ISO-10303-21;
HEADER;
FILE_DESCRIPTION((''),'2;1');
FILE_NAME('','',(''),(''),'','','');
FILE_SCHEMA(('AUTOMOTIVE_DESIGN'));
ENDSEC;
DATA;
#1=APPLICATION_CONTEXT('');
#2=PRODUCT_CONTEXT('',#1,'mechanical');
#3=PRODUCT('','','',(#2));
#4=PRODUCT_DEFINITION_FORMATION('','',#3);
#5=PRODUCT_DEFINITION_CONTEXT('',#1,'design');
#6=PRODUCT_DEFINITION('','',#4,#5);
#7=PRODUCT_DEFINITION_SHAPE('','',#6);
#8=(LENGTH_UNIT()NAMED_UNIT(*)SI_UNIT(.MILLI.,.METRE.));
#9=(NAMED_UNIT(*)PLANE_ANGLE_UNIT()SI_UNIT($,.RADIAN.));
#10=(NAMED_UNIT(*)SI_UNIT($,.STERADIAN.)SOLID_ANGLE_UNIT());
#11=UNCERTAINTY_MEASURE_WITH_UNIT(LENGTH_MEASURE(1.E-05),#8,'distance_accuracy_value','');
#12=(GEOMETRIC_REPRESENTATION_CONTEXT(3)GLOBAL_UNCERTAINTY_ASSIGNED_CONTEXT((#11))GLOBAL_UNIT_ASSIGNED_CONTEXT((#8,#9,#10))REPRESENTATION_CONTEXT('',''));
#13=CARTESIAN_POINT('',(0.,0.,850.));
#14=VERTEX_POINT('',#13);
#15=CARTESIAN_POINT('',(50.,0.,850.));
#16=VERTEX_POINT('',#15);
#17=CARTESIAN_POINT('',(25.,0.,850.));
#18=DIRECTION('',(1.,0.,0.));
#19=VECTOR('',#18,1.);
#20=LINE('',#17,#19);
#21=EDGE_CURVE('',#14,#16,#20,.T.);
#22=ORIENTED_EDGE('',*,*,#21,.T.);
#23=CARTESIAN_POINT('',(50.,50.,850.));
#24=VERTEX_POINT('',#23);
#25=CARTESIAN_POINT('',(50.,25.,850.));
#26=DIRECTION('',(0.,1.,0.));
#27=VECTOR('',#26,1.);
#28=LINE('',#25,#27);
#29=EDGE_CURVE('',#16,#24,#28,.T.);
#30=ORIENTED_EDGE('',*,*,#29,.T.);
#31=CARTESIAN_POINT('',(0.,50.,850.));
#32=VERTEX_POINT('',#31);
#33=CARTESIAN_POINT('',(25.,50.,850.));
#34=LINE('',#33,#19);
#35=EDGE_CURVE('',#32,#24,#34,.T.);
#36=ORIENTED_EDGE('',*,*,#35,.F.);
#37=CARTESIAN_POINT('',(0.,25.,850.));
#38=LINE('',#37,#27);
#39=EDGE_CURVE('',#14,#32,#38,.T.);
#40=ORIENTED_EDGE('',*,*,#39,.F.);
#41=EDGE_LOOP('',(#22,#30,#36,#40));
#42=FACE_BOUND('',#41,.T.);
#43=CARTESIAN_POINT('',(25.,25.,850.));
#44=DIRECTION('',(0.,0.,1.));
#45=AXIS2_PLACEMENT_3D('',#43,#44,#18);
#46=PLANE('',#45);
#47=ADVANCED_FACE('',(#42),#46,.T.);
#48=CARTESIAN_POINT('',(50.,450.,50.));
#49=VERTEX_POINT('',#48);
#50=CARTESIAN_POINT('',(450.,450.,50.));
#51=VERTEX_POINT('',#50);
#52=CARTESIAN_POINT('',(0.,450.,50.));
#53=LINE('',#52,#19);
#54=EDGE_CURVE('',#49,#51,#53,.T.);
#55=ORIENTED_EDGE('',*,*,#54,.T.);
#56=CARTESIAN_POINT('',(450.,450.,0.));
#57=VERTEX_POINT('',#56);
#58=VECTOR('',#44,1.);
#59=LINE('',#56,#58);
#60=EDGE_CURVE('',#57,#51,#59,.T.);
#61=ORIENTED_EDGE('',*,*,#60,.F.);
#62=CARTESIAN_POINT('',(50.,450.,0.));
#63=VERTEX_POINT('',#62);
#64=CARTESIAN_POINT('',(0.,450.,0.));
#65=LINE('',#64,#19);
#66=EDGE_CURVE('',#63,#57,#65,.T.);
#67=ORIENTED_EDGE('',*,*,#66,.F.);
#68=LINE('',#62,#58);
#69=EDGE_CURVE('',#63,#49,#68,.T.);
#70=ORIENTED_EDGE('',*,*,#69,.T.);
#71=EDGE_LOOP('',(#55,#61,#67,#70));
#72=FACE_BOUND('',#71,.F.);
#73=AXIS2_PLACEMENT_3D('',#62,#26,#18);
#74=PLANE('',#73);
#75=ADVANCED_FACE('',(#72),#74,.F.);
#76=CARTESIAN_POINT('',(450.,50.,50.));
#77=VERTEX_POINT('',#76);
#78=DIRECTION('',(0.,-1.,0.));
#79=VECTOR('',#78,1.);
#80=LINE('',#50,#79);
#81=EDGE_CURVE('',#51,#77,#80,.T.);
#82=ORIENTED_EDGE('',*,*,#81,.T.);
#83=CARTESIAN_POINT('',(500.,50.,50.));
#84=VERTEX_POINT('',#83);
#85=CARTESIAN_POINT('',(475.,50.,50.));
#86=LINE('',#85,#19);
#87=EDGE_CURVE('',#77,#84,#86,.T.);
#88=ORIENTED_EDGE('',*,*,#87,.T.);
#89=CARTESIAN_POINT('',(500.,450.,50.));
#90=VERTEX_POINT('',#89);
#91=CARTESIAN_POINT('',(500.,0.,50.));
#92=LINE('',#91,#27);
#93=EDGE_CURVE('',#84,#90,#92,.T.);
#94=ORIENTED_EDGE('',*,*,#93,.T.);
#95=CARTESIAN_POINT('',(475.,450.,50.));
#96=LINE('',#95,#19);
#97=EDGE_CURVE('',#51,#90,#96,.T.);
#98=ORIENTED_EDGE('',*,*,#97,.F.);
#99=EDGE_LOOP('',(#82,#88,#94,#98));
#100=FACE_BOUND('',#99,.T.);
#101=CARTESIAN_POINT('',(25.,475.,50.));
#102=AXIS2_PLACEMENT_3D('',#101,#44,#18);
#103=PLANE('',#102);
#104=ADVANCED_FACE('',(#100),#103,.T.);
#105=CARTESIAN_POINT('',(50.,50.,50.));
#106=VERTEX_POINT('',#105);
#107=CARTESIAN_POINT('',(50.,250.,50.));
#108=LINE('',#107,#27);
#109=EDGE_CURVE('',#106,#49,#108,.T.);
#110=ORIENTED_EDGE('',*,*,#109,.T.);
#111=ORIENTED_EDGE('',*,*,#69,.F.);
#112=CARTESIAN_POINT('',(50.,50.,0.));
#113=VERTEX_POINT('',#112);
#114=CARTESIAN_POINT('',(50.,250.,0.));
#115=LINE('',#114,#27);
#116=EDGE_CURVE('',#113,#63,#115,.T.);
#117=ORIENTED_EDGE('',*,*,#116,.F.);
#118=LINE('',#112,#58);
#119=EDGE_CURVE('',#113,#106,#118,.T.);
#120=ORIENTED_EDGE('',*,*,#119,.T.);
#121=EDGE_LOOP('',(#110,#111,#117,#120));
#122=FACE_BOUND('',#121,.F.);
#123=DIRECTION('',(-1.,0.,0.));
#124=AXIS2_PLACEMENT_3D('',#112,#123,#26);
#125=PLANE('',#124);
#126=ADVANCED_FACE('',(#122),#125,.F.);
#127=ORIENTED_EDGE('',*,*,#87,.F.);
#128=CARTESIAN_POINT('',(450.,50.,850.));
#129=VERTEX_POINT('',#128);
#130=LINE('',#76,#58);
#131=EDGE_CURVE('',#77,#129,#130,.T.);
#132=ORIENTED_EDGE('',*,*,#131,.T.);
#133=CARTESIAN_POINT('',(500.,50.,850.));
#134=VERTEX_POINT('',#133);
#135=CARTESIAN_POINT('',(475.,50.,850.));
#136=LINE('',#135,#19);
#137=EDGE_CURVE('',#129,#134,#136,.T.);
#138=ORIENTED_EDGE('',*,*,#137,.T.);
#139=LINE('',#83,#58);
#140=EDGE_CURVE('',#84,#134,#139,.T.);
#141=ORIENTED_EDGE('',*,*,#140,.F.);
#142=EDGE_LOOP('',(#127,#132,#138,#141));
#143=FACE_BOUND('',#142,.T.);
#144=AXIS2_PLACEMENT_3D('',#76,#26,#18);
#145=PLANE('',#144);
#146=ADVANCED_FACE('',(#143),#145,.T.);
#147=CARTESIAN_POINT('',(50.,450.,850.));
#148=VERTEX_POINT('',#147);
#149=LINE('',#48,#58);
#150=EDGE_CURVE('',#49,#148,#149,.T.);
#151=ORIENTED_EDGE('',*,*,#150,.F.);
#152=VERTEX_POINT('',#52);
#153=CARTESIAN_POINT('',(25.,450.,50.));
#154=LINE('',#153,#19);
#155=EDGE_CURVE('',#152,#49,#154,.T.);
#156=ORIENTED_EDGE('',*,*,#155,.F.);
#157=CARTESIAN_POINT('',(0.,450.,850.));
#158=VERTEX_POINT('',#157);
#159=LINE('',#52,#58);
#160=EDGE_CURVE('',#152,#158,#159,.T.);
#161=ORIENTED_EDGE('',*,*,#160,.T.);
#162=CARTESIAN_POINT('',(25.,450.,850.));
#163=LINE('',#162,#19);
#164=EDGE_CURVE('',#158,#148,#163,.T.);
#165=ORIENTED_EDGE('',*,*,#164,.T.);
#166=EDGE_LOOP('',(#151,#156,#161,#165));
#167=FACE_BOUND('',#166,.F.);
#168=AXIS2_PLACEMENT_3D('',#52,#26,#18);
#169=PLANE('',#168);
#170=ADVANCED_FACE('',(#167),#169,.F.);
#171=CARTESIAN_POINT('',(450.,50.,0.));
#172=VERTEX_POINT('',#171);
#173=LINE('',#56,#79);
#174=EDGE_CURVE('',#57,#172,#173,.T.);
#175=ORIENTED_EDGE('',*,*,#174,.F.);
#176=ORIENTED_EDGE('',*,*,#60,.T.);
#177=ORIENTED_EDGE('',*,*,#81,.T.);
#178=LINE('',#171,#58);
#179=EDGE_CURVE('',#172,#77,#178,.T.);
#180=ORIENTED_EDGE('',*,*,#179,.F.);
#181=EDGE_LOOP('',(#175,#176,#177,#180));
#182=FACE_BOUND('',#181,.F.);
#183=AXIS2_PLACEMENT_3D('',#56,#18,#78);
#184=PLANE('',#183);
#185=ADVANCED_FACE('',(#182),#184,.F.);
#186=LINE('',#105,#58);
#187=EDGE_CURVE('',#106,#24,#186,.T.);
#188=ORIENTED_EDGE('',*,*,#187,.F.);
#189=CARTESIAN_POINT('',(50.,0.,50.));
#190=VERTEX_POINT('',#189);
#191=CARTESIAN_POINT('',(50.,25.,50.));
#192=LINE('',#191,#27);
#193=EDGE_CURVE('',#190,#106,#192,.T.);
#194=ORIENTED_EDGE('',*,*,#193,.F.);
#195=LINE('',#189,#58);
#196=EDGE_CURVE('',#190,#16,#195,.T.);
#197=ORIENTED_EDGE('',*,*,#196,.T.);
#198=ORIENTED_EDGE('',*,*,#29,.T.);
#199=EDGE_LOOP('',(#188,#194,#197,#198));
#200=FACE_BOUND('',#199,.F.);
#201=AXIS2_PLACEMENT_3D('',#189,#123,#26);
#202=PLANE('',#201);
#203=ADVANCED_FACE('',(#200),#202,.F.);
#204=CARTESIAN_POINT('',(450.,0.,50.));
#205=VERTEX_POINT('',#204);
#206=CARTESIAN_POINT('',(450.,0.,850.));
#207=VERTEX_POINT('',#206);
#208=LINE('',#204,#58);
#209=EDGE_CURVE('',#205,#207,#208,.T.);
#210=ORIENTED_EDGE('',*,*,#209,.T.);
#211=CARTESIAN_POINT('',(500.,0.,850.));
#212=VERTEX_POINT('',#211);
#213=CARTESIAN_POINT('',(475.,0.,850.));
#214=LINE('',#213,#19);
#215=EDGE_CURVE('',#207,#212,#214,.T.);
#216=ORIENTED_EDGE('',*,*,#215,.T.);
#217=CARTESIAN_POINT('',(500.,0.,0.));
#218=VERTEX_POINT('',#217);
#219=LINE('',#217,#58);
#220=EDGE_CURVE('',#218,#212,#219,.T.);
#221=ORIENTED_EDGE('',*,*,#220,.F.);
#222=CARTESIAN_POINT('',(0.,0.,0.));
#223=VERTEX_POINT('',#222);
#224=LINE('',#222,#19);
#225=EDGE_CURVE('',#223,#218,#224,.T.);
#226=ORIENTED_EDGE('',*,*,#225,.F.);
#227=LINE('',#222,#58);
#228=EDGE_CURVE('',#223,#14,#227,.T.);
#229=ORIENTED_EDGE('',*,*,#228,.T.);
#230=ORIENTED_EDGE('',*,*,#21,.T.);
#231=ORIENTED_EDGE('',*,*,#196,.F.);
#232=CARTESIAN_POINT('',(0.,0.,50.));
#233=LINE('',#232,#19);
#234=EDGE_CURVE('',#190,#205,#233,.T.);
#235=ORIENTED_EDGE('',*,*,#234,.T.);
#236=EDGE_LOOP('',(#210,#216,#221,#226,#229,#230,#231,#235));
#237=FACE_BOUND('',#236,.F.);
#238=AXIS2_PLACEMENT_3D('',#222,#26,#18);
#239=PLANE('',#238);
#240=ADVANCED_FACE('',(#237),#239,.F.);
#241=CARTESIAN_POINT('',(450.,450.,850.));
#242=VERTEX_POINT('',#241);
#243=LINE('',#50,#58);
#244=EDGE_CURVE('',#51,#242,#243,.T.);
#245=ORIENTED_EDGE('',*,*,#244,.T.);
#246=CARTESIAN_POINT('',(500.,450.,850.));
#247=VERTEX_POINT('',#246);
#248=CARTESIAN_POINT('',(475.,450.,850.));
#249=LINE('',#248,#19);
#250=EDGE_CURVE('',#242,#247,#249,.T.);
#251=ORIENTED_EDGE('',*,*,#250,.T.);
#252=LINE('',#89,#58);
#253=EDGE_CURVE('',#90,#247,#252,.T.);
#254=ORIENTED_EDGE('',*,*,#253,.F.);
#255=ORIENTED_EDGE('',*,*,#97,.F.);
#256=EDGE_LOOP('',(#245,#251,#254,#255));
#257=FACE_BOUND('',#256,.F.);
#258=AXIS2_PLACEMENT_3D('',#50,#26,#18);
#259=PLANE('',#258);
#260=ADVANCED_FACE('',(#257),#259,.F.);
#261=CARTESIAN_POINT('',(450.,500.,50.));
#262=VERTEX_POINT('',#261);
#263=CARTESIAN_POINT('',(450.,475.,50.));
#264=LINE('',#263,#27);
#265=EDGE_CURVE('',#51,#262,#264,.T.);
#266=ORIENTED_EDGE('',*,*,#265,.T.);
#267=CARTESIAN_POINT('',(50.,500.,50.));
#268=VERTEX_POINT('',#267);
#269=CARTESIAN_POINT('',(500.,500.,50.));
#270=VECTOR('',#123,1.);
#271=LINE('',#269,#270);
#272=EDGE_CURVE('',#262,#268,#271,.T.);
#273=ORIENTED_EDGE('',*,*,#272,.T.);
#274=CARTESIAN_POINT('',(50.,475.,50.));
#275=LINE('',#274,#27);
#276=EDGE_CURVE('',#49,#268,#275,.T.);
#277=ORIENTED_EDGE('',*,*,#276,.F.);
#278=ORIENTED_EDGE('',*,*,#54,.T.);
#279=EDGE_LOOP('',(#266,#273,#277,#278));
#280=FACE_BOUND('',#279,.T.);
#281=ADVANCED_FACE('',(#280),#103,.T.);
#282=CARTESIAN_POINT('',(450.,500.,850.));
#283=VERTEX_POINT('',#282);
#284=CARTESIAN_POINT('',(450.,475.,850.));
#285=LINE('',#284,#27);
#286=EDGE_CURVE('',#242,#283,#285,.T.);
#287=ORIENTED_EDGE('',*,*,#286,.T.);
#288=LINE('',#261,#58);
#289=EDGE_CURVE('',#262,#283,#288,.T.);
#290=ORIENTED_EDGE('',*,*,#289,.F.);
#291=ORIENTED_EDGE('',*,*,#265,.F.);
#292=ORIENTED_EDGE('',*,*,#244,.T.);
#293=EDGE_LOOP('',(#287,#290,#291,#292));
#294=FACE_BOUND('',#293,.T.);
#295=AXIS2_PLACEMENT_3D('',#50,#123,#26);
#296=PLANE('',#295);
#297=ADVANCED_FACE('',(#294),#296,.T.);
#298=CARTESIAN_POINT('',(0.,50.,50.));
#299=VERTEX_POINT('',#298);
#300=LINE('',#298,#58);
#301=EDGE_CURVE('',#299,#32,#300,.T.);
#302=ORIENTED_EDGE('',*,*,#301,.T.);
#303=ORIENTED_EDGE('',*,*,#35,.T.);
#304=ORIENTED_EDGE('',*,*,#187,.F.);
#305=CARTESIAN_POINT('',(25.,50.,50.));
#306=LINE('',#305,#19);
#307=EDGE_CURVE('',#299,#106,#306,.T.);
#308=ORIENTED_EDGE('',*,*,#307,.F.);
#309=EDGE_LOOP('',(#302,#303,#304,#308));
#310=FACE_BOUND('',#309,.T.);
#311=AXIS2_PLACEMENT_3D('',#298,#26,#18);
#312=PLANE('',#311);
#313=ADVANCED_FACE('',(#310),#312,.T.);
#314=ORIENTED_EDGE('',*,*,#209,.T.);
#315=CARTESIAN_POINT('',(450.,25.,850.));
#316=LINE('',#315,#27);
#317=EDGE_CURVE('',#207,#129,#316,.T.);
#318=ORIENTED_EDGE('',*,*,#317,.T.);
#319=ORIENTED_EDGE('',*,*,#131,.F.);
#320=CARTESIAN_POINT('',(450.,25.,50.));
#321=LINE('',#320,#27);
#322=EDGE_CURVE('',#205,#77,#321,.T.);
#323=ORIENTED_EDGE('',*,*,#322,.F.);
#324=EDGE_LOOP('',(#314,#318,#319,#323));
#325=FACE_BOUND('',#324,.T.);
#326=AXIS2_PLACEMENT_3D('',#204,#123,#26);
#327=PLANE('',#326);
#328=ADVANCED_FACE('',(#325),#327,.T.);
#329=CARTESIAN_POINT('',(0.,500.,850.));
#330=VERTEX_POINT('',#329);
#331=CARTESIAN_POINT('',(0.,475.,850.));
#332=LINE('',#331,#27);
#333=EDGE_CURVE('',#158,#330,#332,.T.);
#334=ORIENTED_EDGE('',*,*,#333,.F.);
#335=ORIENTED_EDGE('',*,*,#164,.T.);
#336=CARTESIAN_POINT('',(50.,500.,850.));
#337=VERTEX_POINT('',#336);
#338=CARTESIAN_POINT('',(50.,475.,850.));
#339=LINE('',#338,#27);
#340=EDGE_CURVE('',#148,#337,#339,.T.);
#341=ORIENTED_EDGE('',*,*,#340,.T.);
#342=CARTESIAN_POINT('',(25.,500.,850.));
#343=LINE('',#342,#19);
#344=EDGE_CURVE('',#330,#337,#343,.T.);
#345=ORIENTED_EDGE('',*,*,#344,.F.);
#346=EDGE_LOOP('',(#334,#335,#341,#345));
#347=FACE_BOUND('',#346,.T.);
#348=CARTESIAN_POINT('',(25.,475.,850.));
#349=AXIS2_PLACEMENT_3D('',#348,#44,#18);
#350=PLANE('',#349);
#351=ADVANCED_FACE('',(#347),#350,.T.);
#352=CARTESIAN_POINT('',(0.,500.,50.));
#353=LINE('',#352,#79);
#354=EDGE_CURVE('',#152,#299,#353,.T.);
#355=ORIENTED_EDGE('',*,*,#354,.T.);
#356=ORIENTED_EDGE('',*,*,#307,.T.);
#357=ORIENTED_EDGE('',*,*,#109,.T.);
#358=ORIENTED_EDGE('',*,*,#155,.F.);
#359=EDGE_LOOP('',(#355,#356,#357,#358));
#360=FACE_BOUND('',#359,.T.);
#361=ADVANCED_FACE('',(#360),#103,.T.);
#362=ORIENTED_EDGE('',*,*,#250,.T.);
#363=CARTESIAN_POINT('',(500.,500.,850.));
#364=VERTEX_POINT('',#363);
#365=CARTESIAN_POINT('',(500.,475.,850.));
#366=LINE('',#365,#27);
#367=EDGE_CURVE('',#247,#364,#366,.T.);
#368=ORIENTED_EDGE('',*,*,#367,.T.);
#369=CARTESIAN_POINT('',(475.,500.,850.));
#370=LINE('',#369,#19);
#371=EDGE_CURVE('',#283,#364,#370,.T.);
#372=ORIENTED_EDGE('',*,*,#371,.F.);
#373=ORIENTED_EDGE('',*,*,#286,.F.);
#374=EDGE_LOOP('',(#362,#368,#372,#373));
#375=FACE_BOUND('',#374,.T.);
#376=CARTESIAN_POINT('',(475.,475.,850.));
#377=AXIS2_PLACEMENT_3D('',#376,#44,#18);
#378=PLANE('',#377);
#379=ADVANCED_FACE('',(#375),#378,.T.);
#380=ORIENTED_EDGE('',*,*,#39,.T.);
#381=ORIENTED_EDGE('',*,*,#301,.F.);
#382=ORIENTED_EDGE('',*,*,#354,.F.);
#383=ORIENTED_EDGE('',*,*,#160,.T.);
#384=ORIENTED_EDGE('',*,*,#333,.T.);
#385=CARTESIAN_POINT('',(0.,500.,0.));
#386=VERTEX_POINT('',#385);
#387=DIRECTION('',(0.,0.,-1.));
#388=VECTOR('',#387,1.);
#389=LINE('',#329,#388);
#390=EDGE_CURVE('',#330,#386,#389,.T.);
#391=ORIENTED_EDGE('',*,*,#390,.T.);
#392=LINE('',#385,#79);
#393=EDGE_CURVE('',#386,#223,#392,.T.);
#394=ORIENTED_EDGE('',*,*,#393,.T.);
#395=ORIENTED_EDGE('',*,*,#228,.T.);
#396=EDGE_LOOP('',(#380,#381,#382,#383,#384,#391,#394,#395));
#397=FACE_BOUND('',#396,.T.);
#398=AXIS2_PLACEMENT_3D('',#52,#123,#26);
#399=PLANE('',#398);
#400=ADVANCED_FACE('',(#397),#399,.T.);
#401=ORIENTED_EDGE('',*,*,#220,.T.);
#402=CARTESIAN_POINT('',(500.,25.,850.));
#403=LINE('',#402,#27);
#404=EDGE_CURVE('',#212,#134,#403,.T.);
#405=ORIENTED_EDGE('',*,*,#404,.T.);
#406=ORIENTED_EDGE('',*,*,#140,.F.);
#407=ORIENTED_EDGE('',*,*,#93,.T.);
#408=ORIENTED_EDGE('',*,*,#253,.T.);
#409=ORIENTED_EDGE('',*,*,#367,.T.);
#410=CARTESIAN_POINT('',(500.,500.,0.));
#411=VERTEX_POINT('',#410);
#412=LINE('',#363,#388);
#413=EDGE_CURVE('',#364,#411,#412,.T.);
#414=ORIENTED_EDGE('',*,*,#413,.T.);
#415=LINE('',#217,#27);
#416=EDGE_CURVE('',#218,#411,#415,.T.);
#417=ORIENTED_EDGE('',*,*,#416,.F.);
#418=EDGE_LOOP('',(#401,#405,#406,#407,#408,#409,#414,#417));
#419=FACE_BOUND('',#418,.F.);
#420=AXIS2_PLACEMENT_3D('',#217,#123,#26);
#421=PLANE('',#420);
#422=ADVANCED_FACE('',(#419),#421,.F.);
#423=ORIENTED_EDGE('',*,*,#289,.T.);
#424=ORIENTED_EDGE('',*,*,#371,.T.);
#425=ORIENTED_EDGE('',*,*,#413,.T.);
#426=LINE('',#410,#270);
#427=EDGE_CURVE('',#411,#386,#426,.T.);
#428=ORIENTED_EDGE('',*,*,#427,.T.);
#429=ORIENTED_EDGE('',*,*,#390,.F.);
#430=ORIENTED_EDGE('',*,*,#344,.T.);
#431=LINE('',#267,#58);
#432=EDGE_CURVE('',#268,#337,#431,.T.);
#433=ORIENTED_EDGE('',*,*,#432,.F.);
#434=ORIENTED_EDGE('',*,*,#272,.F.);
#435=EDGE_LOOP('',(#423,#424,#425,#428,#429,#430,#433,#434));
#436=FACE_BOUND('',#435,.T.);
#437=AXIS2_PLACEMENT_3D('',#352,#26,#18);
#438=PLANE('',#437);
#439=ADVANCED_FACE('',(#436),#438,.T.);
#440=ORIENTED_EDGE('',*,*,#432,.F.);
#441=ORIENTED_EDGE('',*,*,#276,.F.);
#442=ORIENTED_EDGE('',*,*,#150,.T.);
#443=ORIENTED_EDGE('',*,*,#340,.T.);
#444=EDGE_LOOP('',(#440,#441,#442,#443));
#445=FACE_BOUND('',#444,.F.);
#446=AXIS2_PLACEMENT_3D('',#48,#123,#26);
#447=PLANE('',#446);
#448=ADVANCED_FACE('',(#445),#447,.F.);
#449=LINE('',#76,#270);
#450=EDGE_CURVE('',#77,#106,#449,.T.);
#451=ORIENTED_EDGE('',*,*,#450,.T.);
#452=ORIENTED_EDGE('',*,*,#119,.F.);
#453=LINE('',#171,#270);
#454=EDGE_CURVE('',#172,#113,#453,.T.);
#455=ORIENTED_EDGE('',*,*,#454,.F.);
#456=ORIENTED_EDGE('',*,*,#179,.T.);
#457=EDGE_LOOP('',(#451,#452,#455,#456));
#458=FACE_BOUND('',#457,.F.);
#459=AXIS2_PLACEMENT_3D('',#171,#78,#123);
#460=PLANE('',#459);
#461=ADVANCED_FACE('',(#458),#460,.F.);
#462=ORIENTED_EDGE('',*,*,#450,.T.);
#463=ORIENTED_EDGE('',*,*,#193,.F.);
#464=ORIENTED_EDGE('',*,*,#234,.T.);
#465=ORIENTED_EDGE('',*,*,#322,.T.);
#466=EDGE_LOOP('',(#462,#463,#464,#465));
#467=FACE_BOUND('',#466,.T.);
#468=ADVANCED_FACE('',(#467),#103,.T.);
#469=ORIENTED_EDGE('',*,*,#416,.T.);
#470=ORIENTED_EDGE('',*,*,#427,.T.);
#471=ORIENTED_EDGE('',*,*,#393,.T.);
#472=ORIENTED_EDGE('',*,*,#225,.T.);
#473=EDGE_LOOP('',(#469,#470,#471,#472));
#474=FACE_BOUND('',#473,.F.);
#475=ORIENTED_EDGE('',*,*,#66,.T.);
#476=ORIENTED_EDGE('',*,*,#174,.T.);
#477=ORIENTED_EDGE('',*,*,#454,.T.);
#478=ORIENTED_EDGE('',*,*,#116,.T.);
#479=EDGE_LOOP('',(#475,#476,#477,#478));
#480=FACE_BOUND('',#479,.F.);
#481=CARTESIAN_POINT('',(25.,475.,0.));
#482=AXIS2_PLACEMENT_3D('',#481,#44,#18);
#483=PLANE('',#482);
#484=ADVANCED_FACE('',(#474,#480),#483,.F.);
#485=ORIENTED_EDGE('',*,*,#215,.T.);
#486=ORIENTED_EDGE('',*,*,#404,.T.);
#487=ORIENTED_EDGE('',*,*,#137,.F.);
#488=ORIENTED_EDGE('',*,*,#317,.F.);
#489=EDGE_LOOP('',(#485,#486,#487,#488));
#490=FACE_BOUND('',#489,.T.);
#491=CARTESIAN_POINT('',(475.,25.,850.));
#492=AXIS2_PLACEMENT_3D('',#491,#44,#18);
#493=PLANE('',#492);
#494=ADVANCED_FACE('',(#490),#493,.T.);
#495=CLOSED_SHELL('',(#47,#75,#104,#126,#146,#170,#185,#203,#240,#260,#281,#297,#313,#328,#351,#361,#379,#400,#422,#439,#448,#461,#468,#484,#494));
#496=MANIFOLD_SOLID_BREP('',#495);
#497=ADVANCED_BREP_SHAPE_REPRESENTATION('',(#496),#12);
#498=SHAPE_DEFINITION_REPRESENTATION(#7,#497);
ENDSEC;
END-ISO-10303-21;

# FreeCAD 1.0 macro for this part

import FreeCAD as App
import Part
import Sketcher
Q = App.Units.Quantity


def add_polygon(sketch, points):
    """Adds a closed chain of lines whose ends are joined by coincident constraints."""
    first, n = sketch.GeometryCount, len(points)
    for a, b in zip(points, points[1:] + points[:1]):
        sketch.addGeometry(Part.LineSegment(App.Vector(*a, 0), App.Vector(*b, 0)), False)
    for i in range(n):
        sketch.addConstraint(Sketcher.Constraint("Coincident", first + i, 2, first + (i + 1) % n, 1))

doc = App.newDocument("Part")
body = doc.addObject("PartDesign::Body", "Body")

# Sketch on XY plane
sketch1 = body.newObject("Sketcher::SketchObject", "Sketch")
sketch1.AttachmentSupport = (doc.getObject("XY_Plane"), [""])
sketch1.MapMode = "FlatFace"
add_polygon(sketch1, [(0, 500), (0, 0), (500, 0), (500, 500)])  # lines 0-3
add_polygon(sketch1, [(50, 450), (450, 450), (450, 50), (50, 50)])  # lines 4-7
sketch1.addConstraint(Sketcher.Constraint("Vertical", 0))
sketch1.addConstraint(Sketcher.Constraint("Horizontal", 1))
sketch1.addConstraint(Sketcher.Constraint("Vertical", 2))
sketch1.addConstraint(Sketcher.Constraint("Horizontal", 3))
sketch1.addConstraint(Sketcher.Constraint("Horizontal", 4))
sketch1.addConstraint(Sketcher.Constraint("Vertical", 5))
sketch1.addConstraint(Sketcher.Constraint("Horizontal", 6))
sketch1.addConstraint(Sketcher.Constraint("Vertical", 7))
sketch1.addConstraint(Sketcher.Constraint("Coincident", 0, 2, -1, 1))
sketch1.addConstraint(Sketcher.Constraint("Equal", 3, 0))
sketch1.addConstraint(Sketcher.Constraint("Equal", 6, 5))
sketch1.addConstraint(Sketcher.Constraint("DistanceX", 1, 1, 1, 2, Q("500 mm")))
sketch1.addConstraint(Sketcher.Constraint("DistanceX", 4, 1, 4, 2, Q("400 mm")))
sketch1.addConstraint(Sketcher.Constraint("DistanceX", -1, 1, 4, 2, Q("450 mm")))
sketch1.addConstraint(Sketcher.Constraint("DistanceY", -1, 1, 4, 2, Q("450 mm")))
pad1 = body.newObject("PartDesign::Pad", "Pad")
pad1.Profile = sketch1
pad1.Length = 50

# Sketch on XY plane
sketch2 = body.newObject("Sketcher::SketchObject", "Sketch001")
sketch2.AttachmentSupport = (doc.getObject("XY_Plane"), [""])
sketch2.MapMode = "FlatFace"
sketch2.AttachmentOffset = App.Placement(App.Vector(0, 0, 50), App.Rotation())
add_polygon(sketch2, [(0, 500), (0, 450), (50, 450), (50, 500)])  # lines 0-3
add_polygon(sketch2, [(450, 500), (450, 450), (500, 450), (500, 500)])  # lines 4-7
add_polygon(sketch2, [(450, 50), (450, 0), (500, 0), (500, 50)])  # lines 8-11
add_polygon(sketch2, [(0, 50), (0, 0), (50, 0), (50, 50)])  # lines 12-15
sketch2.addConstraint(Sketcher.Constraint("Vertical", 0))
sketch2.addConstraint(Sketcher.Constraint("Horizontal", 1))
sketch2.addConstraint(Sketcher.Constraint("Vertical", 2))
sketch2.addConstraint(Sketcher.Constraint("Horizontal", 3))
sketch2.addConstraint(Sketcher.Constraint("Vertical", 4))
sketch2.addConstraint(Sketcher.Constraint("Horizontal", 5))
sketch2.addConstraint(Sketcher.Constraint("Vertical", 6))
sketch2.addConstraint(Sketcher.Constraint("Horizontal", 7))
sketch2.addConstraint(Sketcher.Constraint("Vertical", 8))
sketch2.addConstraint(Sketcher.Constraint("Horizontal", 9))
sketch2.addConstraint(Sketcher.Constraint("Vertical", 10))
sketch2.addConstraint(Sketcher.Constraint("Horizontal", 11))
sketch2.addConstraint(Sketcher.Constraint("Vertical", 12))
sketch2.addConstraint(Sketcher.Constraint("Horizontal", 13))
sketch2.addConstraint(Sketcher.Constraint("Vertical", 14))
sketch2.addConstraint(Sketcher.Constraint("Horizontal", 15))
sketch2.addConstraint(Sketcher.Constraint("Coincident", 12, 2, -1, 1))
sketch2.addConstraint(Sketcher.Constraint("PointOnObject", 0, 2, -2))
sketch2.addConstraint(Sketcher.Constraint("PointOnObject", 8, 2, -1))
sketch2.addConstraint(Sketcher.Constraint("Horizontal", 1, 2, 4, 2))
sketch2.addConstraint(Sketcher.Constraint("Horizontal", 3, 2, 6, 2))
sketch2.addConstraint(Sketcher.Constraint("Horizontal", 11, 2, 14, 2))
sketch2.addConstraint(Sketcher.Constraint("Vertical", 7, 2, 8, 2))
sketch2.addConstraint(Sketcher.Constraint("Vertical", 6, 2, 9, 2))
sketch2.addConstraint(Sketcher.Constraint("Vertical", 2, 2, 13, 2))
sketch2.addConstraint(Sketcher.Constraint("Equal", 3, 5))
sketch2.addConstraint(Sketcher.Constraint("Equal", 15, 0))
sketch2.addConstraint(Sketcher.Constraint("Equal", 6, 8))
sketch2.addConstraint(Sketcher.Constraint("DistanceX", 1, 1, 1, 2, Q("50 mm")))
sketch2.addConstraint(Sketcher.Constraint("DistanceY", -1, 1, 0, 2, Q("450 mm")))
sketch2.addConstraint(Sketcher.Constraint("DistanceX", -1, 1, 4, 2, Q("450 mm")))
pad2 = body.newObject("PartDesign::Pad", "Pad001")
pad2.Profile = sketch2
pad2.Length = 800

doc.recompute()
